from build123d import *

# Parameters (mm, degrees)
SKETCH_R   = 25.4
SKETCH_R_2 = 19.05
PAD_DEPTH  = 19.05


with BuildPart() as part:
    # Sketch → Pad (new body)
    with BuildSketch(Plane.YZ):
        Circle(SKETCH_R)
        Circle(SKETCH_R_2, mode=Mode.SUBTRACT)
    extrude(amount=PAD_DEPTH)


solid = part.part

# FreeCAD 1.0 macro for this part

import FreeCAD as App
import Part
import Sketcher
from FreeCAD import Vector
Q = App.Units.Quantity

doc = App.newDocument("Part")
body = doc.addObject("PartDesign::Body", "Body")

# Sketch on YZ plane
sketch1 = doc.addObject("Sketcher::SketchObject", "Sketch")
body.addObject(sketch1)
sketch1.AttachmentSupport = (doc.YZ_Plane, [""])
sketch1.MapMode = "FlatFace"
sketch1.addGeometry([
    Part.Circle(Vector(0, 0, 0), Vector(0, 0, 1), 25.4),
    Part.Circle(Vector(0, 0, 0), Vector(0, 0, 1), 19.05),
], False)
sketch1.addConstraint([
    Sketcher.Constraint("Coincident", 0, 3, -1, 1),
    Sketcher.Constraint("Coincident", 1, 3, -1, 1),
    Sketcher.Constraint("Diameter", 0, Q("2 in")),
    Sketcher.Constraint("Diameter", 1, Q("1.5 in")),
])
pad1 = doc.addObject("PartDesign::Pad", "Pad")
body.addObject(pad1)
pad1.Profile = sketch1
pad1.Length = Q("0.75 in")

doc.recompute()
